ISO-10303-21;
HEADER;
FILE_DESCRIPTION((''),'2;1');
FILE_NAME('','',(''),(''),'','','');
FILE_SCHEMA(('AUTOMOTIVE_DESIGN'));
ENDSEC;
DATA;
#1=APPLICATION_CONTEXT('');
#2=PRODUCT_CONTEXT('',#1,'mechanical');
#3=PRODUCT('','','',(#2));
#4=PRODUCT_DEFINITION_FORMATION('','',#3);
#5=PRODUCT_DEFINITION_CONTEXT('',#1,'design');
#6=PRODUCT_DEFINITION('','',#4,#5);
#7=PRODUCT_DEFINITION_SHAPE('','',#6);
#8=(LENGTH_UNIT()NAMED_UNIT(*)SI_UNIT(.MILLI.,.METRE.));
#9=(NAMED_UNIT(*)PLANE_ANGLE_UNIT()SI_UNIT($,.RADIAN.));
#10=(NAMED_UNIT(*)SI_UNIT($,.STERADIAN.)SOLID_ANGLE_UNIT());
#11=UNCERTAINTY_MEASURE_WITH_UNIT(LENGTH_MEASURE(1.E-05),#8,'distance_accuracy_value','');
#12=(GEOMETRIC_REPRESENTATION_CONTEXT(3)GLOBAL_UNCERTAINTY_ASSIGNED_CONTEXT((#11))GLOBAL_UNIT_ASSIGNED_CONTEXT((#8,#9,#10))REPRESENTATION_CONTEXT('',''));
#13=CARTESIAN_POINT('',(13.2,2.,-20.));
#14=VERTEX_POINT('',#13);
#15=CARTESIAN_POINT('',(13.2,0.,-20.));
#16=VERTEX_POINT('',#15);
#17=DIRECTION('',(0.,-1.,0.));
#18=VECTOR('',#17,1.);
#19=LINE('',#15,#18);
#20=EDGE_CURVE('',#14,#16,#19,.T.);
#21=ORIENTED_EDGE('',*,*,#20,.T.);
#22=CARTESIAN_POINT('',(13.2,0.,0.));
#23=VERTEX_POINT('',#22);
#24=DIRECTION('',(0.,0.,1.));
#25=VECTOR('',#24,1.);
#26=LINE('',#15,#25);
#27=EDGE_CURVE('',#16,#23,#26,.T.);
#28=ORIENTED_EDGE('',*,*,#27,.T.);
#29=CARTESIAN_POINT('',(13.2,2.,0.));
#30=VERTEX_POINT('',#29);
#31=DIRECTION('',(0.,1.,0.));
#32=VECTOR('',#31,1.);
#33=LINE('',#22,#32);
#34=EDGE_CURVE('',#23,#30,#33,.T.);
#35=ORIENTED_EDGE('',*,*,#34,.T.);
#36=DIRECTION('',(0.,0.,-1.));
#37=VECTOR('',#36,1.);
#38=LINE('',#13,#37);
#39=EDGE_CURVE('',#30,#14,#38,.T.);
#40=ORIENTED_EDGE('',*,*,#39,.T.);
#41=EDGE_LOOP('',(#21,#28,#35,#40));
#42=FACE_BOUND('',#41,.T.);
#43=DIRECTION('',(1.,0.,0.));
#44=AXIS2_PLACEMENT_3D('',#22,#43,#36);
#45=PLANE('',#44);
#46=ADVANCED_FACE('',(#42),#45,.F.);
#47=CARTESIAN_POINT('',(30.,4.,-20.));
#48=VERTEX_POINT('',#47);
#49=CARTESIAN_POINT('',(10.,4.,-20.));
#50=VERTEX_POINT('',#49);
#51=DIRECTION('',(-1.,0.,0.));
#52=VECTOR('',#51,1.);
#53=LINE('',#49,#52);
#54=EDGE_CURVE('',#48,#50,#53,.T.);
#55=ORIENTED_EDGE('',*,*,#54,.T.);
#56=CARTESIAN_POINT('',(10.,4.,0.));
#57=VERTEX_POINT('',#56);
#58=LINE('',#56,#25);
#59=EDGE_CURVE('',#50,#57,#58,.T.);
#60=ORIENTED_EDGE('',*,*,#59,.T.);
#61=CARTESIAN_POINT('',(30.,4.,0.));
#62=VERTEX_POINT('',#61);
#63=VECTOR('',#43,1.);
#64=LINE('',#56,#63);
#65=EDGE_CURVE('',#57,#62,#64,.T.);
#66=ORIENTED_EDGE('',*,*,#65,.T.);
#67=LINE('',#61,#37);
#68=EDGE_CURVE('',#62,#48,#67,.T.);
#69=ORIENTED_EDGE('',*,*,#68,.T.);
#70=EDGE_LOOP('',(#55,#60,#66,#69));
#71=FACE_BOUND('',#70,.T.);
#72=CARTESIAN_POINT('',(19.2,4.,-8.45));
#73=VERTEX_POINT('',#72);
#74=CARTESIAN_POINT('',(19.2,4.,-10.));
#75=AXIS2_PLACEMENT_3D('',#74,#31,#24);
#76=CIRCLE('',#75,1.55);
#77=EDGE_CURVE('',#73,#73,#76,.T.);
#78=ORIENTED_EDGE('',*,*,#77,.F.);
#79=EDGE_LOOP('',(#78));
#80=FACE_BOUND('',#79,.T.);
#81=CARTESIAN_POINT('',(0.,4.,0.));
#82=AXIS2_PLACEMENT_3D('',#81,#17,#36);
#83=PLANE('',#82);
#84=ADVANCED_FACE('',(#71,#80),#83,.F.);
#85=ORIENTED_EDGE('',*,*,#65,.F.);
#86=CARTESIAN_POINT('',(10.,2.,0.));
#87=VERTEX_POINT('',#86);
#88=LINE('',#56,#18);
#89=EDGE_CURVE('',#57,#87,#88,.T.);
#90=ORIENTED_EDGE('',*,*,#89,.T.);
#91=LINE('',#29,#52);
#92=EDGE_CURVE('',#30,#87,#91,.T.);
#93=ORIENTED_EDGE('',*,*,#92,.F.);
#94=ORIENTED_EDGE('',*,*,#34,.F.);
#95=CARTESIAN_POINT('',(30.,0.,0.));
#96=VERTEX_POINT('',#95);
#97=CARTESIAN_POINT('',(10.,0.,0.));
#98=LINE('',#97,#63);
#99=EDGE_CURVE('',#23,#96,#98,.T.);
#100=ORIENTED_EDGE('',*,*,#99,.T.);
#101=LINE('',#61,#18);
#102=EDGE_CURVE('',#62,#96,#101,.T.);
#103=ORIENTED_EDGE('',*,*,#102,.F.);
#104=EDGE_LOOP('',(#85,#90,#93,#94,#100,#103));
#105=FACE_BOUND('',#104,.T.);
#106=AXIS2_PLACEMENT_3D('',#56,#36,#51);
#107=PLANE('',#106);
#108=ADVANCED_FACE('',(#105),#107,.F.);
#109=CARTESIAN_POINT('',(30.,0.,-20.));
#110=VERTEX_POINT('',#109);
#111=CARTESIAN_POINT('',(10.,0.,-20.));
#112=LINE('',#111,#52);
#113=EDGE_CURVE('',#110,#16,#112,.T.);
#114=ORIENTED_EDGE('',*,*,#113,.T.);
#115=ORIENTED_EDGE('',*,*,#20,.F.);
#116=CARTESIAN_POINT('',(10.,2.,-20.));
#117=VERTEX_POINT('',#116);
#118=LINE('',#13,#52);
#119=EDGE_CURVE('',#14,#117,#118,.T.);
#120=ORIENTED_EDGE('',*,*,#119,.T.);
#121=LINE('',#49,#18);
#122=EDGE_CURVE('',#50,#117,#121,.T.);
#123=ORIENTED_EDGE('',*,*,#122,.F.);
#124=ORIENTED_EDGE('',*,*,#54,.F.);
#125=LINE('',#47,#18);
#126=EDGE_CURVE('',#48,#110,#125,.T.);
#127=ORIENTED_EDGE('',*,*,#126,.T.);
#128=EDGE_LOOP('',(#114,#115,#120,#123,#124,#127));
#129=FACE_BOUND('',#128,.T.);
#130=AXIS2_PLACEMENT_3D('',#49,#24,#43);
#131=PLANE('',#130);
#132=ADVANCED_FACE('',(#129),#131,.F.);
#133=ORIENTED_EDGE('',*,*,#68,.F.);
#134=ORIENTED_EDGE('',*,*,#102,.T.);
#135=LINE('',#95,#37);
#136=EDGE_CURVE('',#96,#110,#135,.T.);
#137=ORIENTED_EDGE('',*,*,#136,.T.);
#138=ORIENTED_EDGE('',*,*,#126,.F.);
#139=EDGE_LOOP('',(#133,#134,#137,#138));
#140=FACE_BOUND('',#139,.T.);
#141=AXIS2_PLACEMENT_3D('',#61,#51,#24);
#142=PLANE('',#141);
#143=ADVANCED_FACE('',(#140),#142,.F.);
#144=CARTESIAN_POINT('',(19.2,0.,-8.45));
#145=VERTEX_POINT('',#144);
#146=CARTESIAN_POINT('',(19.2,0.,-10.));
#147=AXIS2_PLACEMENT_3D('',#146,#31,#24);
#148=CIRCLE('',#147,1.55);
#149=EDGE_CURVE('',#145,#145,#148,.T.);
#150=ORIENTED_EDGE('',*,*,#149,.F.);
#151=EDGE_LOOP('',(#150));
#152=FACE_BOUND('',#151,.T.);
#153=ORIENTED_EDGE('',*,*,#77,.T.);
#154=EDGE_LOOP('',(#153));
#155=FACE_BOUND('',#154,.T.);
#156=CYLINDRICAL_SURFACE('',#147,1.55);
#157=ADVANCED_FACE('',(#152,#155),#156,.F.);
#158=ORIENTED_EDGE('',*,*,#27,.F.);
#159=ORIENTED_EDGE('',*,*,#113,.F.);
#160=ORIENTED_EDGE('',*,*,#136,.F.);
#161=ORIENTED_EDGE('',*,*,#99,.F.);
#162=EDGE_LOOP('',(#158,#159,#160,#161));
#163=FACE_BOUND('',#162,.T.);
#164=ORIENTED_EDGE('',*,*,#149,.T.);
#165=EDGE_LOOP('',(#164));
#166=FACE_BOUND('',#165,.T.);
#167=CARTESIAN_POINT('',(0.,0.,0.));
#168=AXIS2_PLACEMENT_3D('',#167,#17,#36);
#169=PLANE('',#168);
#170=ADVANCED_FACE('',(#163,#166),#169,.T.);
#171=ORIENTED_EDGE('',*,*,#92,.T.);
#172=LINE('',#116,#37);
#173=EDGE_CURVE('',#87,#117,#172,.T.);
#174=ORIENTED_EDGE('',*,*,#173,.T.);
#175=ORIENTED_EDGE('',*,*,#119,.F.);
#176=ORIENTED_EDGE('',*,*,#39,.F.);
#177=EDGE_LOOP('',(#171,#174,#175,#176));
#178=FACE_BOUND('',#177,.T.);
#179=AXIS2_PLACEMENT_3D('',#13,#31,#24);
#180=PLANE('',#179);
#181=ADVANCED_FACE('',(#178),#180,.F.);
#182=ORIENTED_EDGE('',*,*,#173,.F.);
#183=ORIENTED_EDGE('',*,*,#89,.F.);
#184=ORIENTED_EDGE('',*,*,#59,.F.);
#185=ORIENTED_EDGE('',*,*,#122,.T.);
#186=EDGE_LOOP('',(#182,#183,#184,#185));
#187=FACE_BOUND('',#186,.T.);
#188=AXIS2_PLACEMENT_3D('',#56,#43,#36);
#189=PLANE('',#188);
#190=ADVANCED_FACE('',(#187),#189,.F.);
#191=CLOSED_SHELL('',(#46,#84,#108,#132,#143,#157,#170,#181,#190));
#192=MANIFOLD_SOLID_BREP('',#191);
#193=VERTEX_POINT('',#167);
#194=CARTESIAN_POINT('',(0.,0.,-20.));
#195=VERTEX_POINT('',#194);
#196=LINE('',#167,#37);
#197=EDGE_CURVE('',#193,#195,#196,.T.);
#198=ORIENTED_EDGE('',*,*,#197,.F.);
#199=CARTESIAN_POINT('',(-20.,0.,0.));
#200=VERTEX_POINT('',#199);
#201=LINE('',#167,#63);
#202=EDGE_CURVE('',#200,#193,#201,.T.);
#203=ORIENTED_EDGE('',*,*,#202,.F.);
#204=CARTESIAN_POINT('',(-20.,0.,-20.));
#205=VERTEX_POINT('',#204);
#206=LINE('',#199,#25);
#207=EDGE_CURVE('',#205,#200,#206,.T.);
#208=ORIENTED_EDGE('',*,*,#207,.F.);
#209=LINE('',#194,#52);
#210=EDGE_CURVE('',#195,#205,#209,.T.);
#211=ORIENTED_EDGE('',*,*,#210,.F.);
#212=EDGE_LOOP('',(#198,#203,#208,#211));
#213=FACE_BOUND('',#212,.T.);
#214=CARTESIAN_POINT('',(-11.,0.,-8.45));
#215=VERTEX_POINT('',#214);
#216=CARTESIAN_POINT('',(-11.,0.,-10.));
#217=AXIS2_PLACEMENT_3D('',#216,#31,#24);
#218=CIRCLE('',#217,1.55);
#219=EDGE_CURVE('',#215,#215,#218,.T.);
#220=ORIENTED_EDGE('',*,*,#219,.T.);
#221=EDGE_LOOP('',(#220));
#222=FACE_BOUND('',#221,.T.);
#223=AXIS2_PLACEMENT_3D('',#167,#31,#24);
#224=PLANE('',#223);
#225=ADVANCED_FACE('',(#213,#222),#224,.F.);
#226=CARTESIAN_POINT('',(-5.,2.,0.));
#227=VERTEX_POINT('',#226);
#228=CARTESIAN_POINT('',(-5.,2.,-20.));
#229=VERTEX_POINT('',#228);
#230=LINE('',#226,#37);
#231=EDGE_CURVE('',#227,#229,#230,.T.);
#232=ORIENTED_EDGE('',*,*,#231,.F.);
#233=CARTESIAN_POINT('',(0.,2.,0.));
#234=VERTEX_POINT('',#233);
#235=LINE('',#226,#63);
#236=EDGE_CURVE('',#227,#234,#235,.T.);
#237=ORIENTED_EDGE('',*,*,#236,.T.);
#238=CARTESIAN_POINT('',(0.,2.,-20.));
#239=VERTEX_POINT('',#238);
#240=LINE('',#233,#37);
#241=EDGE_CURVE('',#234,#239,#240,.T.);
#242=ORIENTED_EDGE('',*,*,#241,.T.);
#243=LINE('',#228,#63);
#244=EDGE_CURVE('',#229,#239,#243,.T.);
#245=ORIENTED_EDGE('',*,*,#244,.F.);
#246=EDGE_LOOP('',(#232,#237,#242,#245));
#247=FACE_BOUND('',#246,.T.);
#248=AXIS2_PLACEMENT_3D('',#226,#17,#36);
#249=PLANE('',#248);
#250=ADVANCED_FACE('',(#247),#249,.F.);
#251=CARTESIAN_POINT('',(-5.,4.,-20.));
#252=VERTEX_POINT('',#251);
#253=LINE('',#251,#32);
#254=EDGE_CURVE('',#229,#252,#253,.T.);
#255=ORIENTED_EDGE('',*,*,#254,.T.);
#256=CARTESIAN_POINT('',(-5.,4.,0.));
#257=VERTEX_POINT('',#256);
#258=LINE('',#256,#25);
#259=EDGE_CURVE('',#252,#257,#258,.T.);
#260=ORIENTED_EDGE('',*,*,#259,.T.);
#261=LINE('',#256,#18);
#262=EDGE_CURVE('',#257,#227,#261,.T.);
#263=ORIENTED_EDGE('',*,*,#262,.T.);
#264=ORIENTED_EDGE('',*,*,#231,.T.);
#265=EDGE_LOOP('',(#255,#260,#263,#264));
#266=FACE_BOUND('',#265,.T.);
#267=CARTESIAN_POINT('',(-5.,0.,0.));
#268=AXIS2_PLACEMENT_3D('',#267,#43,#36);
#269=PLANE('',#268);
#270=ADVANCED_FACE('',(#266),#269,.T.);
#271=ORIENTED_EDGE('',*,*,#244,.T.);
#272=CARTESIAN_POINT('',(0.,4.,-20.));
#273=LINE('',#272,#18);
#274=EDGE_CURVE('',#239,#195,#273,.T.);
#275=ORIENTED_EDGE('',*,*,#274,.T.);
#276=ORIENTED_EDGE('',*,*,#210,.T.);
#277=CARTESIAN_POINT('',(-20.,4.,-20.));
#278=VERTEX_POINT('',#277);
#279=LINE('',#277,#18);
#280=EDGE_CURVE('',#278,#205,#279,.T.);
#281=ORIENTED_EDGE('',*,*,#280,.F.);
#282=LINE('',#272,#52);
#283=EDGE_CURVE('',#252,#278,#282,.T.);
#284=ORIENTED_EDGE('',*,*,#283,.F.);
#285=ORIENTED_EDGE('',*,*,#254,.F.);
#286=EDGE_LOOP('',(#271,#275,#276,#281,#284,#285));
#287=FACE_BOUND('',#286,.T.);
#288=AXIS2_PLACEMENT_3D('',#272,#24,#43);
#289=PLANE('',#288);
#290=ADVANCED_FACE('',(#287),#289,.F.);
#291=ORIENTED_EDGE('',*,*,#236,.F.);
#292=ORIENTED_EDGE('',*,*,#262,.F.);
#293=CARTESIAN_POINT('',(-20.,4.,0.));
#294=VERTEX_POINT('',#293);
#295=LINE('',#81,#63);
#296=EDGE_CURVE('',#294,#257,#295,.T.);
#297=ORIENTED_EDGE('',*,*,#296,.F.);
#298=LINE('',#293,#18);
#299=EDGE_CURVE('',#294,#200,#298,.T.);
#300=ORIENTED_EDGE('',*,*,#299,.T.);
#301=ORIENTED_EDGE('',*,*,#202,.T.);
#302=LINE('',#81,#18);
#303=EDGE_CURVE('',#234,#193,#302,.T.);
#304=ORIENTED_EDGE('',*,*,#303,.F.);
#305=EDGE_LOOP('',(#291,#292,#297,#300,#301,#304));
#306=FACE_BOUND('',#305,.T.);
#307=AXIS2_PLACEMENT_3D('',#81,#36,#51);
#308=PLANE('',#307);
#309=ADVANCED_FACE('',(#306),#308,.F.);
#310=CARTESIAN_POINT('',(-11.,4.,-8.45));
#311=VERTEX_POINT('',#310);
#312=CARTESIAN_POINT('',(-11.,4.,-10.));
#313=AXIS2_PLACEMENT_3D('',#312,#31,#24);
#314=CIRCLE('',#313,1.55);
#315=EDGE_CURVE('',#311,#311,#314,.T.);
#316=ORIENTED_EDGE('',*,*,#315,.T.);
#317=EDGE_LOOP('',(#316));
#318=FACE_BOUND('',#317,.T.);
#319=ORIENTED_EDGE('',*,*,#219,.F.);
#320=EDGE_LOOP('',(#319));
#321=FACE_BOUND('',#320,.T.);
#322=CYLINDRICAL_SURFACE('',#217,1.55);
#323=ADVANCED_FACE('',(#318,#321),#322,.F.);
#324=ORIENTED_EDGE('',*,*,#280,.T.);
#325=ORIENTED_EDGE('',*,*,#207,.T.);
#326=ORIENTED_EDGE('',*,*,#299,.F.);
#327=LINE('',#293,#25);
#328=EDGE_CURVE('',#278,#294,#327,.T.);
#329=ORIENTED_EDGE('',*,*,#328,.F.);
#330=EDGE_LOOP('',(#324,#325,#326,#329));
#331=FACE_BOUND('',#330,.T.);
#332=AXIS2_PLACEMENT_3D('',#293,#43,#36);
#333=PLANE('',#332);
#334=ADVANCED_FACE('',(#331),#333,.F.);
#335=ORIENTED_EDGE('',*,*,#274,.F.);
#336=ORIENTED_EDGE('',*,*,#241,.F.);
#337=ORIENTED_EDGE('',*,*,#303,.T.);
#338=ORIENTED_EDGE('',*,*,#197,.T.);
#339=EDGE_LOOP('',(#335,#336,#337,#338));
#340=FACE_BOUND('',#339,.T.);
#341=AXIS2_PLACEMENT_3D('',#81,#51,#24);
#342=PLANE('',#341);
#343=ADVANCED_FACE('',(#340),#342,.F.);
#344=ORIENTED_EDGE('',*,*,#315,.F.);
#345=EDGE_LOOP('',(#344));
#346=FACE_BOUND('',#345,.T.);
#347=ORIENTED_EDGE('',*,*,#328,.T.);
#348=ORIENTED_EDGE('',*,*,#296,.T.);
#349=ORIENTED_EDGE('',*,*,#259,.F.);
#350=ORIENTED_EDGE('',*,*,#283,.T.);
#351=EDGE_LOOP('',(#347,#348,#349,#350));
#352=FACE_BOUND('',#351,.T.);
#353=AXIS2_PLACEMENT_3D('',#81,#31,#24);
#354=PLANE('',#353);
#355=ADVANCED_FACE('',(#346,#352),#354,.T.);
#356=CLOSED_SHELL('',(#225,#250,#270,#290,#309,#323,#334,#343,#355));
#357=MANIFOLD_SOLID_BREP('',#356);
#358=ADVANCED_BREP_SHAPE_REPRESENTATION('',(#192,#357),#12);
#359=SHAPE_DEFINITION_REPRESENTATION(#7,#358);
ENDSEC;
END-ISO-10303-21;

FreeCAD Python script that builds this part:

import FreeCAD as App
import Part
import Sketcher
from FreeCAD import Vector


def add_polygon(sketch, points):
    """Adds a closed chain of lines whose ends are joined by coincident constraints."""
    first, n = sketch.GeometryCount, len(points)
    for a, b in zip(points, points[1:] + points[:1]):
        sketch.addGeometry(Part.LineSegment(App.Vector(*a, 0), App.Vector(*b, 0)), False)
    for i in range(n):
        sketch.addConstraint(Sketcher.Constraint("Coincident", first + i, 2, first + (i + 1) % n, 1))

doc = App.newDocument("Part")
params = doc.addObject("Spreadsheet::Sheet", "Params")
for row, (alias, value) in enumerate([
    ("sketch1_width", "20 mm"),
    ("pad1_length", "4 mm"),
    ("sketch2_width", "2 mm"),
    ("sketch2_height", "20 mm"),
    ("pocket1_length", "5 mm"),
    ("sketch3_diameter", "3.1 mm"),
    ("pocket2_length", "4 mm"),
    ("sketch4_width", "20 mm"),
    ("pad2_length", "4 mm"),
    ("sketch5_width", "2 mm"),
    ("sketch5_height", "20 mm"),
    ("pocket3_length", "3.2 mm"),
    ("sketch6_diameter", "3.1 mm"),
    ("pocket4_length", "4 mm"),
], start=1):
    params.set(f"A{row}", alias)
    params.set(f"B{row}", "=" + value)
    params.setAlias(f"B{row}", alias)

body = doc.addObject("PartDesign::Body", "Body")

# Sketch on XZ plane
sketch1 = body.newObject("Sketcher::SketchObject", "Sketch")
sketch1.AttachmentSupport = (doc.getObject("XZ_Plane"), [""])
sketch1.MapMode = "FlatFace"
add_polygon(sketch1, [(-20, -20), (-20, 0), (0, 0), (0, -20)])  # lines 0-3
sketch1.addConstraint([
    Sketcher.Constraint("Vertical", 0),
    Sketcher.Constraint("Horizontal", 1),
    Sketcher.Constraint("Vertical", 2),
    Sketcher.Constraint("Horizontal", 3),
    Sketcher.Constraint("Coincident", 1, 2, -1, 1),
    Sketcher.Constraint("Equal", 3, 0),
    Sketcher.Constraint("DistanceX", 1, 1, 1, 2, 20.0),
])
sketch1.setExpression("Constraints[10]", "Params.sketch1_width")
pad1 = body.newObject("PartDesign::Pad", "Pad")
pad1.Profile = sketch1
pad1.setExpression("Length", "Params.pad1_length")
pad1.Reversed = True

# Sketch on YZ plane
sketch2 = body.newObject("Sketcher::SketchObject", "Sketch001")
sketch2.AttachmentSupport = (doc.getObject("YZ_Plane"), [""])
sketch2.MapMode = "FlatFace"
add_polygon(sketch2, [(4, 0), (2, 0), (2, -20), (4, -20)])  # lines 0-3
sketch2.addConstraint([
    Sketcher.Constraint("Horizontal", 0),
    Sketcher.Constraint("Vertical", 1),
    Sketcher.Constraint("Horizontal", 2),
    Sketcher.Constraint("Vertical", 3),
    Sketcher.Constraint("PointOnObject", 0, 2, -1),
    Sketcher.Constraint("DistanceX", 0, 2, 0, 1, 2.0),
    Sketcher.Constraint("DistanceY", 1, 2, 1, 1, 20.0),
    Sketcher.Constraint("DistanceX", -1, 1, 0, 2, 2.0),
])
sketch2.setExpression("Constraints[9]", "Params.sketch2_width")
sketch2.setExpression("Constraints[10]", "Params.sketch2_height")
pocket1 = body.newObject("PartDesign::Pocket", "Pocket")
pocket1.Profile = sketch2
pocket1.setExpression("Length", "Params.pocket1_length")

# Sketch on XZ plane
sketch3 = body.newObject("Sketcher::SketchObject", "Sketch002")
sketch3.AttachmentSupport = (doc.getObject("XZ_Plane"), [""])
sketch3.MapMode = "FlatFace"
sketch3.AttachmentOffset = App.Placement(Vector(0, 0, -4), App.Rotation())
sketch3.addGeometry(Part.Circle(Vector(-11, -10, 0), Vector(0, 0, 1), 1.55), False)
sketch3.addConstraint([
    Sketcher.Constraint("Diameter", 0, 3.1),
    Sketcher.Constraint("DistanceX", 0, 3, -1, 1, 11.0),
    Sketcher.Constraint("DistanceY", 0, 3, -1, 1, 10.0),
])
sketch3.setExpression("Constraints[0]", "Params.sketch3_diameter")
pocket2 = body.newObject("PartDesign::Pocket", "Pocket001")
pocket2.Profile = sketch3
pocket2.setExpression("Length", "Params.pocket2_length")
pocket2.Reversed = True
body2 = doc.addObject("PartDesign::Body", "Body001")

# Sketch on XZ plane
sketch4 = body2.newObject("Sketcher::SketchObject", "Sketch003")
sketch4.AttachmentSupport = (doc.getObject("XZ_Plane001"), [""])
sketch4.MapMode = "FlatFace"
add_polygon(sketch4, [(10, -20), (10, 0), (30, 0), (30, -20)])  # lines 0-3
sketch4.addConstraint([
    Sketcher.Constraint("Vertical", 0),
    Sketcher.Constraint("Horizontal", 1),
    Sketcher.Constraint("Vertical", 2),
    Sketcher.Constraint("Horizontal", 3),
    Sketcher.Constraint("PointOnObject", 0, 2, -1),
    Sketcher.Constraint("Equal", 3, 0),
    Sketcher.Constraint("DistanceX", 1, 1, 1, 2, 20.0),
    Sketcher.Constraint("DistanceX", -1, 1, 0, 2, 10.0),
])
sketch4.setExpression("Constraints[10]", "Params.sketch4_width")
pad2 = body2.newObject("PartDesign::Pad", "Pad001")
pad2.Profile = sketch4
pad2.setExpression("Length", "Params.pad2_length")
pad2.Reversed = True

# Sketch on YZ plane
sketch5 = body2.newObject("Sketcher::SketchObject", "Sketch004")
sketch5.AttachmentSupport = (doc.getObject("YZ_Plane001"), [""])
sketch5.MapMode = "FlatFace"
sketch5.AttachmentOffset = App.Placement(Vector(0, 0, 10), App.Rotation())
add_polygon(sketch5, [(2, -20), (0, -20), (0, 0), (2, 0)])  # lines 0-3
sketch5.addConstraint([
    Sketcher.Constraint("Horizontal", 0),
    Sketcher.Constraint("Vertical", 1),
    Sketcher.Constraint("Horizontal", 2),
    Sketcher.Constraint("Vertical", 3),
    Sketcher.Constraint("Coincident", 1, 2, -1, 1),
    Sketcher.Constraint("DistanceX", 0, 2, 0, 1, 2.0),
    Sketcher.Constraint("DistanceY", 1, 1, 1, 2, 20.0),
])
sketch5.setExpression("Constraints[9]", "Params.sketch5_width")
sketch5.setExpression("Constraints[10]", "Params.sketch5_height")
pocket3 = body2.newObject("PartDesign::Pocket", "Pocket002")
pocket3.Profile = sketch5
pocket3.setExpression("Length", "Params.pocket3_length")
pocket3.Reversed = True

# Sketch on XZ plane
sketch6 = body2.newObject("Sketcher::SketchObject", "Sketch005")
sketch6.AttachmentSupport = (doc.getObject("XZ_Plane001"), [""])
sketch6.MapMode = "FlatFace"
sketch6.AttachmentOffset = App.Placement(Vector(0, 0, -4), App.Rotation())
sketch6.addGeometry(Part.Circle(Vector(19.2, -10, 0), Vector(0, 0, 1), 1.55), False)
sketch6.addConstraint([
    Sketcher.Constraint("Diameter", 0, 3.1),
    Sketcher.Constraint("DistanceY", 0, 3, -1, 1, 10.0),
    Sketcher.Constraint("DistanceX", -1, 1, 0, 3, 19.2),
])
sketch6.setExpression("Constraints[0]", "Params.sketch6_diameter")
pocket4 = body2.newObject("PartDesign::Pocket", "Pocket003")
pocket4.Profile = sketch6
pocket4.setExpression("Length", "Params.pocket4_length")
pocket4.Reversed = True

doc.recompute()
